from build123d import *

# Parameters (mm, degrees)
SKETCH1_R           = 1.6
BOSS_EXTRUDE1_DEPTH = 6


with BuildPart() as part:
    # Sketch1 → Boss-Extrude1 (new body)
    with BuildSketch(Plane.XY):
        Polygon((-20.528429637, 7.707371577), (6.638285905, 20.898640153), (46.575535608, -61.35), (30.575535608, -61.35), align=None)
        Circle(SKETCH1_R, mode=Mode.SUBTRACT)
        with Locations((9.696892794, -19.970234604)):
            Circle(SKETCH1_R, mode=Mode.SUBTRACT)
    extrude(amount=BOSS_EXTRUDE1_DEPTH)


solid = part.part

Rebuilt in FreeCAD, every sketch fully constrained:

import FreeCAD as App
import Part
import Sketcher
from FreeCAD import Vector

doc = App.newDocument("Part")
params = doc.addObject("Spreadsheet::Sheet", "Params")
for row, (alias, value) in enumerate([
    ("sketch1_diameter", "3.2 mm"),
    ("sketch1_width", "16 mm"),
    ("sketch1_length", "30.2 mm"),
    ("pad1_length", "6 mm"),
], start=1):
    params.set(f"A{row}", alias)
    params.set(f"B{row}", "=" + value)
    params.setAlias(f"B{row}", alias)

body = doc.addObject("PartDesign::Body", "Body")

sketch1 = doc.addObject("Sketcher::SketchObject", "Sketch")
body.addObject(sketch1)
sketch1.AttachmentSupport = (doc.XY_Plane, [""])
sketch1.MapMode = "FlatFace"
sketch1.addGeometry([
    Part.LineSegment(Vector(6.638286, 20.89864, 0), Vector(-20.52843, 7.707372, 0)),
    Part.LineSegment(Vector(-20.52843, 7.707372, 0), Vector(30.575536, -61.35, 0)),
    Part.LineSegment(Vector(30.575536, -61.35, 0), Vector(46.575536, -61.35, 0)),
    Part.LineSegment(Vector(46.575536, -61.35, 0), Vector(6.638286, 20.89864, 0)),
    Part.Circle(Vector(9.696893, -19.970235, 0), Vector(0, 0, 1), 1.6),
    Part.Circle(Vector(0, 0, 0), Vector(0, 0, 1), 1.6),
], False)
sketch1.addConstraint([
    Sketcher.Constraint("Coincident", 0, 2, 1, 1),
    Sketcher.Constraint("Coincident", 1, 2, 2, 1),
    Sketcher.Constraint("Coincident", 2, 2, 3, 1),
    Sketcher.Constraint("Coincident", 3, 2, 0, 1),
    Sketcher.Constraint("Horizontal", 2),
    Sketcher.Constraint("Coincident", 5, 3, -1, 1),
    Sketcher.Constraint("Equal", 4, 5),
    Sketcher.Constraint("Perpendicular", 0, 3),
    Sketcher.Constraint("Diameter", 4, 3.2),
    Sketcher.Constraint("DistanceX", 2, 1, 2, 2, 16.0),
    Sketcher.Constraint("Distance", 0, 30.2),
    Sketcher.Constraint("DistanceY", 1, 2, -1, 1, 61.35),
    Sketcher.Constraint("DistanceX", 0, 2, -1, 1, 20.52843),
    Sketcher.Constraint("DistanceY", -1, 1, 0, 2, 7.707372),
    Sketcher.Constraint("DistanceY", -1, 1, 3, 2, 20.89864),
    Sketcher.Constraint("DistanceX", -1, 1, 4, 3, 9.696893),
    Sketcher.Constraint("DistanceY", 4, 3, -1, 1, 19.970235),
])
sketch1.setExpression("Constraints[8]", "Params.sketch1_diameter")
sketch1.setExpression("Constraints[9]", "Params.sketch1_width")
sketch1.setExpression("Constraints[10]", "Params.sketch1_length")
pad1 = doc.addObject("PartDesign::Pad", "Pad")
body.addObject(pad1)
pad1.Profile = sketch1
pad1.setExpression("Length", "Params.pad1_length")

doc.recompute()
